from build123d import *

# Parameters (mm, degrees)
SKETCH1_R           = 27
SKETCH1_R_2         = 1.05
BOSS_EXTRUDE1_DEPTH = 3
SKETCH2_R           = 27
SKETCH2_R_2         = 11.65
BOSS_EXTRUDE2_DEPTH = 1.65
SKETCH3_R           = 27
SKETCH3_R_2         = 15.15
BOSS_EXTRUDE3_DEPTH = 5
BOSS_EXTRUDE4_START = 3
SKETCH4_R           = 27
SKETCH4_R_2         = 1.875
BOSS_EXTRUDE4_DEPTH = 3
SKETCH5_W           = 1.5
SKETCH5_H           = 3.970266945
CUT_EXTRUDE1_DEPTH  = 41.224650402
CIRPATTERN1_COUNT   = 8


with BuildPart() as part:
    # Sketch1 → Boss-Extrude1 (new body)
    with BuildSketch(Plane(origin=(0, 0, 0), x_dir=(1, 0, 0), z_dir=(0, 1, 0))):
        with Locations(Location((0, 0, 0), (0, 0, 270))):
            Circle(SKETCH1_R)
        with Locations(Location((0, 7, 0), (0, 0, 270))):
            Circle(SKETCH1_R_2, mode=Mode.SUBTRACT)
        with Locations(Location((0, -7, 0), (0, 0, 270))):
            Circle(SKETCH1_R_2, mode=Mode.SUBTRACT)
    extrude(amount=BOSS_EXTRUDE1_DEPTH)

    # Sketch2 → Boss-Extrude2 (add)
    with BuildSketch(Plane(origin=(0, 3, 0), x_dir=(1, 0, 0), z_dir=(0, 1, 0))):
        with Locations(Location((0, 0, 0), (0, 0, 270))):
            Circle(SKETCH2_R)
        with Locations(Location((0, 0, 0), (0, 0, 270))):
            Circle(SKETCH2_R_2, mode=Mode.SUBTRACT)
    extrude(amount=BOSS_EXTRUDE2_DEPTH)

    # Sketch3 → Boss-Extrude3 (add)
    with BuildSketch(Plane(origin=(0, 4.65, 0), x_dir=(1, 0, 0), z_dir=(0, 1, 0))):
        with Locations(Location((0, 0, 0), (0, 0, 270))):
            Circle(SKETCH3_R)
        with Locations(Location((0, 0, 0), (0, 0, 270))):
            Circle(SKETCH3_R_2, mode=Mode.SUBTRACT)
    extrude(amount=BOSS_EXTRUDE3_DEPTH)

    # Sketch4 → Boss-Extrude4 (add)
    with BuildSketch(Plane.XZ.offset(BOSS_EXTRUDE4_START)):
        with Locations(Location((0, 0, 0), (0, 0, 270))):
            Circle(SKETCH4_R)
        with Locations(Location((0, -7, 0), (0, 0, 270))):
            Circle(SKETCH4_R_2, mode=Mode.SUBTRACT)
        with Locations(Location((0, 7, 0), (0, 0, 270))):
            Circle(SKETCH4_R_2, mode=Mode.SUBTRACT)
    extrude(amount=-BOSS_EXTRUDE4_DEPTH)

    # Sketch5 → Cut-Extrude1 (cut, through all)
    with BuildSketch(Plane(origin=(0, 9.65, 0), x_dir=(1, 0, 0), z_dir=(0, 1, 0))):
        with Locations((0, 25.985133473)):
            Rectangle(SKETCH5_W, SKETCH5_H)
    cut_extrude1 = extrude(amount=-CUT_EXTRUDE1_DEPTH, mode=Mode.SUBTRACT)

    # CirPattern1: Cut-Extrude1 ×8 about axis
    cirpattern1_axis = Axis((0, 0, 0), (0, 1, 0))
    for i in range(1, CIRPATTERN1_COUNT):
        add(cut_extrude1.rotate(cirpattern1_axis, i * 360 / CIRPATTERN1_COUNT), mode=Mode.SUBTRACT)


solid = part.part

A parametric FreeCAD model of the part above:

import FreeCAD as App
import Part
import Sketcher
Q = App.Units.Quantity

doc = App.newDocument("Part")
params = doc.addObject("Spreadsheet::Sheet", "Params")
for row, (alias, value) in enumerate([
    ("sketch1_diameter", "54 mm"),
    ("sketch1_diameter2", "2.1 mm"),
    ("pad1_length", "3 mm"),
    ("sketch2_diameter", "54 mm"),
    ("sketch2_diameter2", "23.3 mm"),
    ("pad2_length", "1.65 mm"),
    ("sketch3_diameter", "54 mm"),
    ("sketch3_diameter2", "30.3 mm"),
    ("pad3_length", "5 mm"),
    ("sketch4_diameter", "54 mm"),
    ("sketch4_diameter2", "3.75 mm"),
    ("pad4_length", "3 mm"),
    ("sketch5_width", "1.5 mm"),
], start=1):
    params.set(f"A{row}", alias)
    params.set(f"B{row}", "=" + value)
    params.setAlias(f"B{row}", alias)

body = doc.addObject("PartDesign::Body", "Body")

# Sketch on XZ plane
sketch1 = body.newObject("Sketcher::SketchObject", "Sketch")
sketch1.AttachmentSupport = (doc.getObject("XZ_Plane"), [""])
sketch1.MapMode = "FlatFace"
sketch1.addGeometry([
    Part.Circle(App.Vector(0, 0, 0), App.Vector(0, 0, 1), 27),
    Part.Circle(App.Vector(0, -7, 0), App.Vector(0, 0, 1), 1.05),
    Part.Circle(App.Vector(0, 7, 0), App.Vector(0, 0, 1), 1.05),
], False)
sketch1.addConstraint([
    Sketcher.Constraint("Coincident", 0, 3, -1, 1),
    Sketcher.Constraint("Equal", 1, 2),
    Sketcher.Constraint("Symmetric", 1, 3, 2, 3, -1, 1),
    Sketcher.Constraint("PointOnObject", 1, 3, -2),
    Sketcher.Constraint("Diameter", 0, Q("54 mm")),
    Sketcher.Constraint("Diameter", 1, Q("2.1 mm")),
    Sketcher.Constraint("DistanceY", 1, 3, -1, 1, Q("7 mm")),
])
sketch1.setExpression("Constraints[4]", "Params.sketch1_diameter")
sketch1.setExpression("Constraints[5]", "Params.sketch1_diameter2")
pad1 = body.newObject("PartDesign::Pad", "Pad")
pad1.Profile = sketch1
pad1.setExpression("Length", "Params.pad1_length")
pad1.Reversed = True

# Sketch on XZ plane
sketch2 = body.newObject("Sketcher::SketchObject", "Sketch001")
sketch2.AttachmentSupport = (doc.getObject("XZ_Plane"), [""])
sketch2.MapMode = "FlatFace"
sketch2.AttachmentOffset = App.Placement(App.Vector(0, 0, -3), App.Rotation())
sketch2.addGeometry([
    Part.Circle(App.Vector(0, 0, 0), App.Vector(0, 0, 1), 27),
    Part.Circle(App.Vector(0, 0, 0), App.Vector(0, 0, 1), 11.65),
], False)
sketch2.addConstraint([
    Sketcher.Constraint("Coincident", 0, 3, -1, 1),
    Sketcher.Constraint("Coincident", 1, 3, -1, 1),
    Sketcher.Constraint("Diameter", 0, Q("54 mm")),
    Sketcher.Constraint("Diameter", 1, Q("23.3 mm")),
])
sketch2.setExpression("Constraints[2]", "Params.sketch2_diameter")
sketch2.setExpression("Constraints[3]", "Params.sketch2_diameter2")
pad2 = body.newObject("PartDesign::Pad", "Pad001")
pad2.Profile = sketch2
pad2.setExpression("Length", "Params.pad2_length")
pad2.Reversed = True

# Sketch on XZ plane
sketch3 = body.newObject("Sketcher::SketchObject", "Sketch002")
sketch3.AttachmentSupport = (doc.getObject("XZ_Plane"), [""])
sketch3.MapMode = "FlatFace"
sketch3.AttachmentOffset = App.Placement(App.Vector(0, 0, -4.65), App.Rotation())
sketch3.addGeometry([
    Part.Circle(App.Vector(0, 0, 0), App.Vector(0, 0, 1), 27),
    Part.Circle(App.Vector(0, 0, 0), App.Vector(0, 0, 1), 15.15),
], False)
sketch3.addConstraint([
    Sketcher.Constraint("Coincident", 0, 3, -1, 1),
    Sketcher.Constraint("Coincident", 1, 3, -1, 1),
    Sketcher.Constraint("Diameter", 0, Q("54 mm")),
    Sketcher.Constraint("Diameter", 1, Q("30.3 mm")),
])
sketch3.setExpression("Constraints[2]", "Params.sketch3_diameter")
sketch3.setExpression("Constraints[3]", "Params.sketch3_diameter2")
pad3 = body.newObject("PartDesign::Pad", "Pad002")
pad3.Profile = sketch3
pad3.setExpression("Length", "Params.pad3_length")
pad3.Reversed = True

# Sketch on XZ plane
sketch4 = body.newObject("Sketcher::SketchObject", "Sketch003")
sketch4.AttachmentSupport = (doc.getObject("XZ_Plane"), [""])
sketch4.MapMode = "FlatFace"
sketch4.AttachmentOffset = App.Placement(App.Vector(0, 0, 3), App.Rotation())
sketch4.addGeometry([
    Part.Circle(App.Vector(0, 0, 0), App.Vector(0, 0, 1), 27),
    Part.Circle(App.Vector(0, 7, 0), App.Vector(0, 0, 1), 1.875),
    Part.Circle(App.Vector(0, -7, 0), App.Vector(0, 0, 1), 1.875),
], False)
sketch4.addConstraint([
    Sketcher.Constraint("Coincident", 0, 3, -1, 1),
    Sketcher.Constraint("Equal", 1, 2),
    Sketcher.Constraint("Symmetric", 1, 3, 2, 3, -1, 1),
    Sketcher.Constraint("PointOnObject", 1, 3, -2),
    Sketcher.Constraint("Diameter", 0, Q("54 mm")),
    Sketcher.Constraint("Diameter", 1, Q("3.75 mm")),
    Sketcher.Constraint("DistanceY", -1, 1, 1, 3, Q("7 mm")),
])
sketch4.setExpression("Constraints[4]", "Params.sketch4_diameter")
sketch4.setExpression("Constraints[5]", "Params.sketch4_diameter2")
pad4 = body.newObject("PartDesign::Pad", "Pad003")
pad4.Profile = sketch4
pad4.setExpression("Length", "Params.pad4_length")
pad4.Reversed = True

# Sketch on XZ plane
sketch5 = body.newObject("Sketcher::SketchObject", "Sketch004")
sketch5.AttachmentSupport = (doc.getObject("XZ_Plane"), [""])
sketch5.MapMode = "FlatFace"
sketch5.AttachmentOffset = App.Placement(App.Vector(0, 0, -9.65), App.Rotation())
sketch5.addGeometry([
    Part.LineSegment(App.Vector(-0.75, -27.970267, 0), App.Vector(-0.75, -24, 0)),
    Part.LineSegment(App.Vector(-0.75, -24, 0), App.Vector(0.75, -24, 0)),
    Part.LineSegment(App.Vector(0.75, -24, 0), App.Vector(0.75, -27.970267, 0)),
    Part.LineSegment(App.Vector(0.75, -27.970267, 0), App.Vector(-0.75, -27.970267, 0)),
], False)
sketch5.addConstraint([
    Sketcher.Constraint("Coincident", 0, 2, 1, 1),
    Sketcher.Constraint("Coincident", 1, 2, 2, 1),
    Sketcher.Constraint("Coincident", 2, 2, 3, 1),
    Sketcher.Constraint("Coincident", 3, 2, 0, 1),
    Sketcher.Constraint("Vertical", 0),
    Sketcher.Constraint("Horizontal", 1),
    Sketcher.Constraint("Vertical", 2),
    Sketcher.Constraint("Horizontal", 3),
    Sketcher.Constraint("DistanceX", 1, 1, 1, 2, Q("1.5 mm")),
    Sketcher.Constraint("DistanceY", 0, 2, -1, 1, Q("24 mm")),
    Sketcher.Constraint("DistanceX", 0, 2, -1, 1, Q("0.75 mm")),
    Sketcher.Constraint("DistanceY", 0, 1, 0, 2, Q("3.970267 mm")),
])
sketch5.setExpression("Constraints[8]", "Params.sketch5_width")
pocket1 = body.newObject("PartDesign::Pocket", "Pocket")
pocket1.Profile = sketch5
pocket1.Type = "ThroughAll"
pocket1.Reversed = True
doc.recompute()

polarpattern = body.newObject("PartDesign::PolarPattern", "PolarPattern")
polarpattern.Originals = [pocket1]
polarpattern.Axis = (doc.getObject("Y_Axis"), [""])
polarpattern.Angle = 360
polarpattern.Occurrences = 8
body.Tip = polarpattern

doc.recompute()
